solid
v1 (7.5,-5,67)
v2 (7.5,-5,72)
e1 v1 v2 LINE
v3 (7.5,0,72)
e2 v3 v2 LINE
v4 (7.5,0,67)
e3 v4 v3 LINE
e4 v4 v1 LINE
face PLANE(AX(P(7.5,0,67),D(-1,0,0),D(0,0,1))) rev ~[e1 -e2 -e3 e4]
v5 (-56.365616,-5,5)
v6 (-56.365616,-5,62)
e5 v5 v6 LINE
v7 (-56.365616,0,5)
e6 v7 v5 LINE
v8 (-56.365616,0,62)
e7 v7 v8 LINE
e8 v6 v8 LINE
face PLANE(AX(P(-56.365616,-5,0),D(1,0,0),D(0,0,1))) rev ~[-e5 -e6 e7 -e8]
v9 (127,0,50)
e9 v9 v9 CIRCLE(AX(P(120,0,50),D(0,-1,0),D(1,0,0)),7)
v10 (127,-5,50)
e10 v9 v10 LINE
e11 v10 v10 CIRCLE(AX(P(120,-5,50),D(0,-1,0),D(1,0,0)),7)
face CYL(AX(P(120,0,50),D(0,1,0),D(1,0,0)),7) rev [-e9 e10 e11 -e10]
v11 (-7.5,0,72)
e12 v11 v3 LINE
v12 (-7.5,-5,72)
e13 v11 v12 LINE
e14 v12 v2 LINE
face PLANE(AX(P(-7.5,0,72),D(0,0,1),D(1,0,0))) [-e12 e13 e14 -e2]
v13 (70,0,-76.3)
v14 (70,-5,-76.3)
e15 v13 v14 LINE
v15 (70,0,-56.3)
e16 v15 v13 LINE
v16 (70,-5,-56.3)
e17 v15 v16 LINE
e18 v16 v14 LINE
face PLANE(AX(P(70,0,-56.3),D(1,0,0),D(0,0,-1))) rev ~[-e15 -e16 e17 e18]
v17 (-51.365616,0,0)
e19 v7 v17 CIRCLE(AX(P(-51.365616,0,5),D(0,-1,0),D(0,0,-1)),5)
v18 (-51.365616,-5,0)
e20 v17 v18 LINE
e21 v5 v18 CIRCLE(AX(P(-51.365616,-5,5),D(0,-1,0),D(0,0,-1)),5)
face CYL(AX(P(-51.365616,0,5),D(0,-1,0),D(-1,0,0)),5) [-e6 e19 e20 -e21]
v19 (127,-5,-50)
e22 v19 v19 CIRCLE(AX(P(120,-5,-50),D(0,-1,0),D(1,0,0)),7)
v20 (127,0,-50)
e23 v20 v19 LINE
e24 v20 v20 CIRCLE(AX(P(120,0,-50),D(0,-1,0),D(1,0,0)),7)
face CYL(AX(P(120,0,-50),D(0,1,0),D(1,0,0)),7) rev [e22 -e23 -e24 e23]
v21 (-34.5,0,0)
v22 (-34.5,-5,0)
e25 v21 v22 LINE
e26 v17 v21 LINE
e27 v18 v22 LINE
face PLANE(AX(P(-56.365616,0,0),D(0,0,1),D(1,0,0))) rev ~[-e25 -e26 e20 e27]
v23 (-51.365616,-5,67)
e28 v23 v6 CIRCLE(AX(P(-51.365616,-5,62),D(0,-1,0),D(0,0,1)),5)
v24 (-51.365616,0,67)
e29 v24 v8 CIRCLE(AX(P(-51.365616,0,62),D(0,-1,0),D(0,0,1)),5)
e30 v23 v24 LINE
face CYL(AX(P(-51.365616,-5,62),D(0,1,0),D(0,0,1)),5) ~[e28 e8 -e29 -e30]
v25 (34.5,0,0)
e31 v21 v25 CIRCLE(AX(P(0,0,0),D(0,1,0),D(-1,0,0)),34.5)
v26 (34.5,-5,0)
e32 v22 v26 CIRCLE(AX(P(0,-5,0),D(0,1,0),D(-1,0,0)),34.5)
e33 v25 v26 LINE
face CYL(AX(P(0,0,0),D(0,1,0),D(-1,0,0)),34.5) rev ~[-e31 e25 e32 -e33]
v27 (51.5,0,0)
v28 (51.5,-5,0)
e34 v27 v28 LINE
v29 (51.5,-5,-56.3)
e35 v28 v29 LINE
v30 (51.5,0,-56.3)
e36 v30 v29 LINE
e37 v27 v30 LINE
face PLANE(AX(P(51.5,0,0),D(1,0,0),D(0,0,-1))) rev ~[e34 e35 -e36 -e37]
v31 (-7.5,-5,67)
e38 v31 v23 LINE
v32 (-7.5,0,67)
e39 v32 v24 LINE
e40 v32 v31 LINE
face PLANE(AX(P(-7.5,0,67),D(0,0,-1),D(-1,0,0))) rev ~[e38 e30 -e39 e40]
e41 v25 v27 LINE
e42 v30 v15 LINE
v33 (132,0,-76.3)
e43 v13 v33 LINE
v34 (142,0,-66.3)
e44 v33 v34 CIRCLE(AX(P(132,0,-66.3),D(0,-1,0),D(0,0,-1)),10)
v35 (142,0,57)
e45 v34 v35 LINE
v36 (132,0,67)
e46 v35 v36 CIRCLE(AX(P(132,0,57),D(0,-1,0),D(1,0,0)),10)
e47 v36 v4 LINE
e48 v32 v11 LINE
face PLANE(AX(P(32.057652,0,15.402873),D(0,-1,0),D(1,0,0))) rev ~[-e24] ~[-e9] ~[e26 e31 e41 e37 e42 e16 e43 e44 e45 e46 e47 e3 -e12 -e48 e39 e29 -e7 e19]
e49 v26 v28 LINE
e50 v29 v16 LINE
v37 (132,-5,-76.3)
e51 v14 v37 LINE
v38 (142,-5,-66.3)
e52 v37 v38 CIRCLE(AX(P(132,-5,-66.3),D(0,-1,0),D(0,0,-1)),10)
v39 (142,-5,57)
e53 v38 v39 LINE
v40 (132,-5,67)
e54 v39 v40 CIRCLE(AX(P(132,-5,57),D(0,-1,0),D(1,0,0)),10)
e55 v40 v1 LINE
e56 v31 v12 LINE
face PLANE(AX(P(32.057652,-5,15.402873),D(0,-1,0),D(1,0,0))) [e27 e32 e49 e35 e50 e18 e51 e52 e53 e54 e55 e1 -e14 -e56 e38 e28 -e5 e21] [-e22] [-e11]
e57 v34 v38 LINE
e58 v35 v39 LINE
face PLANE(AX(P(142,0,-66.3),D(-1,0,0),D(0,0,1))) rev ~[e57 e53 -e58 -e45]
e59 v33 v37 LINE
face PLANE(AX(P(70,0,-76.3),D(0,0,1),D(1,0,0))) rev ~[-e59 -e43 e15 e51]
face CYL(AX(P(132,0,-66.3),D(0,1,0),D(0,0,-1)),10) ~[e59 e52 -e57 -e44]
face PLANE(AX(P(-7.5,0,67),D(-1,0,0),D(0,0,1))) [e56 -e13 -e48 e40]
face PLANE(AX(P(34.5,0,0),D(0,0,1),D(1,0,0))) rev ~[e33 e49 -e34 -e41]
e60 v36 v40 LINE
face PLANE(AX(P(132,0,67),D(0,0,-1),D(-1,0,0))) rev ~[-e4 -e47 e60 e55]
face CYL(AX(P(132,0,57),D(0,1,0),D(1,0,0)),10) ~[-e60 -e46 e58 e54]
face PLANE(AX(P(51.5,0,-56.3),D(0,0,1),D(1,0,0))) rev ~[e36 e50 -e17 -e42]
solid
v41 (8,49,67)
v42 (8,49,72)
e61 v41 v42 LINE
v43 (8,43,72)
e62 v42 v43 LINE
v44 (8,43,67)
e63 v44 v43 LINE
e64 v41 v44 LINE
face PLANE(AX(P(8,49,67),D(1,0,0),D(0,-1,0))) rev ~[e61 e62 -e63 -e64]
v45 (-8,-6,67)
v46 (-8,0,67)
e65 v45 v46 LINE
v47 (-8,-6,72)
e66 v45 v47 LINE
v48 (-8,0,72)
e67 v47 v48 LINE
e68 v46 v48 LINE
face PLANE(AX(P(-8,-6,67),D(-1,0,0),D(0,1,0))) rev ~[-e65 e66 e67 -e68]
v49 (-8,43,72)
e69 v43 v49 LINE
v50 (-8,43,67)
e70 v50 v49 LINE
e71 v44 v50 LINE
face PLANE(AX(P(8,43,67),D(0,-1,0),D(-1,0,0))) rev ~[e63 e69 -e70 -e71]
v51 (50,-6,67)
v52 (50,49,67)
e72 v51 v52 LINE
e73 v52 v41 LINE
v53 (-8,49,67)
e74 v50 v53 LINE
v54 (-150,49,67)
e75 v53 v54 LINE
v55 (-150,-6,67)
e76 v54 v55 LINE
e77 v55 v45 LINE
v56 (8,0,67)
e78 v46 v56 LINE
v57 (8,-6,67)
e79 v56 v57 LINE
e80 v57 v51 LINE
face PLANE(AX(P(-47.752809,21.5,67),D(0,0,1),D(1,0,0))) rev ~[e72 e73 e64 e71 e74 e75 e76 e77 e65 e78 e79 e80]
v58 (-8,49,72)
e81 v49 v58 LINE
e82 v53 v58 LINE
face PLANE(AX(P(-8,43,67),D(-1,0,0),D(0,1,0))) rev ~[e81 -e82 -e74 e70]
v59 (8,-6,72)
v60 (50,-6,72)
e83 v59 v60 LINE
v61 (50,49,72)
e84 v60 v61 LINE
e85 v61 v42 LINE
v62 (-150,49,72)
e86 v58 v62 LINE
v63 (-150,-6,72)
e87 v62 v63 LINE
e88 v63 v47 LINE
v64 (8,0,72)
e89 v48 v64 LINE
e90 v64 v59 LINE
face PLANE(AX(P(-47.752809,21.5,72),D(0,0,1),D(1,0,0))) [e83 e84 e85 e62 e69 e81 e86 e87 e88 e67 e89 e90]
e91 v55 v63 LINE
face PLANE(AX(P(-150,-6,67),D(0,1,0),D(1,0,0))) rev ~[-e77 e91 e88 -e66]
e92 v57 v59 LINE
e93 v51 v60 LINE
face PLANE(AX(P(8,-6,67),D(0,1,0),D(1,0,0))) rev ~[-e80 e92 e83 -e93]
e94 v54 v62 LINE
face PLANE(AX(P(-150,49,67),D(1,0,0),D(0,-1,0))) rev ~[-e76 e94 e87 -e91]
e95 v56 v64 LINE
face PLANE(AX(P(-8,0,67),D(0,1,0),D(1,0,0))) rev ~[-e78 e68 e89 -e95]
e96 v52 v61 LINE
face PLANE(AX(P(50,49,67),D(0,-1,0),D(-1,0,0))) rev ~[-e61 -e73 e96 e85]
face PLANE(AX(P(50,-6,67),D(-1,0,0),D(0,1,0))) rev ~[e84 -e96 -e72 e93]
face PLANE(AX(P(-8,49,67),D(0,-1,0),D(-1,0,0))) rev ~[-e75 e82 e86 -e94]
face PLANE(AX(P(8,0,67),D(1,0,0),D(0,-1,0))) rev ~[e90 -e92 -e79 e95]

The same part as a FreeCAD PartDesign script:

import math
import FreeCAD as App
import Part
import Sketcher
Q = App.Units.Quantity


def edges_at(feature, points):
    """Names of the edges that pass closest to the given points."""
    edges = feature.Shape.Edges
    near = lambda p: min(range(len(edges)), key=lambda i: edges[i].distToShape(Part.Vertex(*p))[0])
    return sorted({f"Edge{near(p) + 1}" for p in points})

doc = App.newDocument("Part")
body = doc.addObject("PartDesign::Body", "Body")

# Sketch on XZ plane
sketch1 = doc.addObject("Sketcher::SketchObject", "Sketch")
body.addObject(sketch1)
sketch1.AttachmentSupport = (doc.XZ_Plane, [""])
sketch1.MapMode = "FlatFace"
sketch1.addGeometry([
    Part.ArcOfCircle(Part.Circle(App.Vector(-112, 57, 0), App.Vector(0, 0, 1), 10), math.radians(90), math.radians(230)),  # 0
    Part.LineSegment(App.Vector(-119, 49, 0), App.Vector(-63, 2, 0)),  # 1
    Part.ArcOfCircle(Part.Circle(App.Vector(-56, 10, 0), App.Vector(0, 0, 1), 10), math.radians(-130), math.radians(-90)),  # 2
    Part.LineSegment(App.Vector(-56, 0, 0), App.Vector(-34, 0, 0)),  # 3
    Part.ArcOfCircle(Part.Circle(App.Vector(0, 0, 0), App.Vector(0, 0, 1), 34), math.radians(0), math.radians(180)),  # 4
    Part.LineSegment(App.Vector(34, 0, 0), App.Vector(52, 0, 0)),  # 5
    Part.LineSegment(App.Vector(52, 0, 0), App.Vector(52, -56, 0)),  # 6
    Part.LineSegment(App.Vector(52, -56, 0), App.Vector(70, -56, 0)),  # 7
    Part.LineSegment(App.Vector(70, -56, 0), App.Vector(70, -76, 0)),  # 8
    Part.LineSegment(App.Vector(70, -76, 0), App.Vector(132, -76, 0)),  # 9
    Part.ArcOfCircle(Part.Circle(App.Vector(132, -66, 0), App.Vector(0, 0, 1), 10), math.radians(-90), math.radians(0)),  # 10
    Part.LineSegment(App.Vector(142, -66, 0), App.Vector(142, 57, 0)),  # 11
    Part.ArcOfCircle(Part.Circle(App.Vector(132, 57, 0), App.Vector(0, 0, 1), 10), math.radians(0), math.radians(90)),  # 12
    Part.LineSegment(App.Vector(132, 67, 0), App.Vector(8, 67, 0)),  # 13
    Part.LineSegment(App.Vector(8, 67, 0), App.Vector(8, 72, 0)),  # 14
    Part.LineSegment(App.Vector(8, 72, 0), App.Vector(-8, 72, 0)),  # 15
    Part.LineSegment(App.Vector(-8, 72, 0), App.Vector(-8, 67, 0)),  # 16
    Part.LineSegment(App.Vector(-8, 67, 0), App.Vector(-112, 67, 0)),  # 17
    Part.Circle(App.Vector(120, -50, 0), App.Vector(0, 0, 1), 7),  # 18
    Part.Circle(App.Vector(120, 50, 0), App.Vector(0, 0, 1), 7),  # 19
], False)
sketch1.addConstraint([
    Sketcher.Constraint("Tangent", 0, 2, 1, 1),
    Sketcher.Constraint("Tangent", 1, 2, 2, 1),
    Sketcher.Constraint("Tangent", 2, 2, 3, 1),
    Sketcher.Constraint("Coincident", 3, 2, 4, 2),
    Sketcher.Constraint("Coincident", 4, 1, 5, 1),
    Sketcher.Constraint("Coincident", 5, 2, 6, 1),
    Sketcher.Constraint("Coincident", 6, 2, 7, 1),
    Sketcher.Constraint("Coincident", 7, 2, 8, 1),
    Sketcher.Constraint("Coincident", 8, 2, 9, 1),
    Sketcher.Constraint("Tangent", 9, 2, 10, 1),
    Sketcher.Constraint("Tangent", 10, 2, 11, 1),
    Sketcher.Constraint("Tangent", 11, 2, 12, 1),
    Sketcher.Constraint("Tangent", 12, 2, 13, 1),
    Sketcher.Constraint("Coincident", 13, 2, 14, 1),
    Sketcher.Constraint("Coincident", 14, 2, 15, 1),
    Sketcher.Constraint("Coincident", 15, 2, 16, 1),
    Sketcher.Constraint("Coincident", 16, 2, 17, 1),
    Sketcher.Constraint("Tangent", 17, 2, 0, 1),
    Sketcher.Constraint("Horizontal", 3),
    Sketcher.Constraint("Horizontal", 5),
    Sketcher.Constraint("Vertical", 6),
    Sketcher.Constraint("Horizontal", 7),
    Sketcher.Constraint("Vertical", 8),
    Sketcher.Constraint("Horizontal", 9),
    Sketcher.Constraint("Vertical", 11),
    Sketcher.Constraint("Horizontal", 13),
    Sketcher.Constraint("Vertical", 14),
    Sketcher.Constraint("Horizontal", 15),
    Sketcher.Constraint("Vertical", 16),
    Sketcher.Constraint("Horizontal", 17),
    Sketcher.Constraint("Coincident", 4, 3, -1, 1),
    Sketcher.Constraint("Equal", 0, 2),
    Sketcher.Constraint("Equal", 2, 10),
    Sketcher.Constraint("Equal", 10, 12),
    Sketcher.Constraint("Equal", 18, 19),
    Sketcher.Constraint("Symmetric", 13, 2, 16, 2, -2),
    Sketcher.Constraint("Symmetric", 18, 3, 19, 3, -1),
    Sketcher.Constraint("PointOnObject", 2, 2, -1),
    Sketcher.Constraint("PointOnObject", 4, 1, -1),
    Sketcher.Constraint("Diameter", 18, Q("14 mm")),
    Sketcher.Constraint("Radius", 0, Q("10 mm")),
    Sketcher.Constraint("Radius", 4, Q("34.5 mm")),
    Sketcher.Constraint("DistanceX", 5, 1, 5, 2, Q("17 mm")),
    Sketcher.Constraint("DistanceX", 9, 1, 9, 2, Q("62 mm")),
    Sketcher.Constraint("DistanceX", 15, 2, 15, 1, Q("15 mm")),
    Sketcher.Constraint("DistanceY", 8, 2, 8, 1, Q("20 mm")),
    Sketcher.Constraint("DistanceY", 14, 1, 14, 2, Q("5 mm")),
    Sketcher.Constraint("DistanceX", 7, 1, 7, 2, Q("18.5 mm")),
    Sketcher.Constraint("DistanceY", 6, 2, 6, 1, Q("56.3 mm")),
    Sketcher.Constraint("DistanceY", 11, 1, 11, 2, Q("123.3 mm")),
    Sketcher.Constraint("DistanceX", -1, 1, 18, 3, Q("120 mm")),
    Sketcher.Constraint("DistanceY", 18, 3, -1, 1, Q("50 mm")),
    Sketcher.Constraint("DistanceX", 17, 2, 17, 1, Q("104.985019 mm")),
    Sketcher.Constraint("DistanceX", 3, 1, 3, 2, Q("21.865616 mm")),
])
pad1 = doc.addObject("PartDesign::Pad", "Pad")
body.addObject(pad1)
pad1.Profile = sketch1
pad1.Length = 5

# Sketch on XZ plane
sketch2 = doc.addObject("Sketcher::SketchObject", "Sketch001")
body.addObject(sketch2)
sketch2.AttachmentSupport = (doc.XZ_Plane, [""])
sketch2.MapMode = "FlatFace"
sketch2.AttachmentOffset = App.Placement(App.Vector(0, 0, 5), App.Rotation())
sketch2.addGeometry([
    Part.ArcOfCircle(Part.Circle(App.Vector(-56, 10, 0), App.Vector(0, 0, 1), 10), math.radians(-130), math.radians(-90)),  # 0
    Part.LineSegment(App.Vector(-56, 0, 0), App.Vector(-56, 67, 0)),  # 1
    Part.LineSegment(App.Vector(-56, 67, 0), App.Vector(-112, 67, 0)),  # 2
    Part.ArcOfCircle(Part.Circle(App.Vector(-112, 57, 0), App.Vector(0, 0, 1), 10), math.radians(90), math.radians(230)),  # 3
    Part.LineSegment(App.Vector(-119, 49, 0), App.Vector(-63, 2, 0)),  # 4
], False)
sketch2.addConstraint([
    Sketcher.Constraint("Coincident", 0, 2, 1, 1),
    Sketcher.Constraint("Coincident", 1, 2, 2, 1),
    Sketcher.Constraint("Tangent", 2, 2, 3, 1),
    Sketcher.Constraint("Tangent", 3, 2, 4, 1),
    Sketcher.Constraint("Tangent", 4, 2, 0, 1),
    Sketcher.Constraint("Vertical", 1),
    Sketcher.Constraint("Horizontal", 2),
    Sketcher.Constraint("Equal", 0, 3),
    Sketcher.Constraint("PointOnObject", 0, 2, -1),
    Sketcher.Constraint("Radius", 0, Q("10 mm")),
    Sketcher.Constraint("DistanceY", 1, 1, 1, 2, Q("67 mm")),
    Sketcher.Constraint("DistanceX", 2, 2, 2, 1, Q("56.119403 mm")),
    Sketcher.Constraint("DistanceX", 3, 3, -1, 1, Q("112.485019 mm")),
    Sketcher.Constraint("DistanceY", -1, 1, 3, 2, Q("49.33352 mm")),
])
pocket1 = doc.addObject("PartDesign::Pocket", "Pocket")
body.addObject(pocket1)
pocket1.Profile = sketch2
pocket1.Length = 25
doc.recompute()

fillet = doc.addObject("PartDesign::Fillet", "Fillet")
body.addObject(fillet)
fillet.Base = (pocket1, edges_at(pocket1, [(-56.366, -2.5, 67), (-56.366, -2.5, 0)]))
fillet.Radius = 5
body2 = doc.addObject("PartDesign::Body", "Body001")

# Sketch on XY plane
sketch3 = doc.addObject("Sketcher::SketchObject", "Sketch002")
body2.addObject(sketch3)
sketch3.AttachmentSupport = (doc.getObject("XY_Plane001"), [""])
sketch3.MapMode = "FlatFace"
sketch3.AttachmentOffset = App.Placement(App.Vector(0, 0, 67), App.Rotation())
sketch3.addGeometry([
    Part.LineSegment(App.Vector(8, -6, 0), App.Vector(50, -6, 0)),  # 0
    Part.LineSegment(App.Vector(50, -6, 0), App.Vector(50, 49, 0)),  # 1
    Part.LineSegment(App.Vector(50, 49, 0), App.Vector(8, 49, 0)),  # 2
    Part.LineSegment(App.Vector(8, 49, 0), App.Vector(8, 43, 0)),  # 3
    Part.LineSegment(App.Vector(8, 43, 0), App.Vector(-8, 43, 0)),  # 4
    Part.LineSegment(App.Vector(-8, 43, 0), App.Vector(-8, 49, 0)),  # 5
    Part.LineSegment(App.Vector(-8, 49, 0), App.Vector(-150, 49, 0)),  # 6
    Part.LineSegment(App.Vector(-150, 49, 0), App.Vector(-150, -6, 0)),  # 7
    Part.LineSegment(App.Vector(-150, -6, 0), App.Vector(-8, -6, 0)),  # 8
    Part.LineSegment(App.Vector(-8, -6, 0), App.Vector(-8, 0, 0)),  # 9
    Part.LineSegment(App.Vector(-8, 0, 0), App.Vector(8, 0, 0)),  # 10
    Part.LineSegment(App.Vector(8, 0, 0), App.Vector(8, -6, 0)),  # 11
], False)
sketch3.addConstraint([
    Sketcher.Constraint("Coincident", 0, 2, 1, 1),
    Sketcher.Constraint("Coincident", 1, 2, 2, 1),
    Sketcher.Constraint("Coincident", 2, 2, 3, 1),
    Sketcher.Constraint("Coincident", 3, 2, 4, 1),
    Sketcher.Constraint("Coincident", 4, 2, 5, 1),
    Sketcher.Constraint("Coincident", 5, 2, 6, 1),
    Sketcher.Constraint("Coincident", 6, 2, 7, 1),
    Sketcher.Constraint("Coincident", 7, 2, 8, 1),
    Sketcher.Constraint("Coincident", 8, 2, 9, 1),
    Sketcher.Constraint("Coincident", 9, 2, 10, 1),
    Sketcher.Constraint("Coincident", 10, 2, 11, 1),
    Sketcher.Constraint("Coincident", 11, 2, 0, 1),
    Sketcher.Constraint("Horizontal", 0),
    Sketcher.Constraint("Vertical", 1),
    Sketcher.Constraint("Horizontal", 2),
    Sketcher.Constraint("Vertical", 3),
    Sketcher.Constraint("Horizontal", 4),
    Sketcher.Constraint("Vertical", 5),
    Sketcher.Constraint("Horizontal", 6),
    Sketcher.Constraint("Vertical", 7),
    Sketcher.Constraint("Horizontal", 8),
    Sketcher.Constraint("Vertical", 9),
    Sketcher.Constraint("Horizontal", 10),
    Sketcher.Constraint("Vertical", 11),
    Sketcher.Constraint("Symmetric", 9, 2, 10, 2, -1, 1),
    Sketcher.Constraint("Symmetric", 2, 2, 5, 2, -2),
    Sketcher.Constraint("Horizontal", 0, 2, 7, 2),
    Sketcher.Constraint("Vertical", 5, 2, 8, 2),
    Sketcher.Constraint("Equal", 5, 9),
    Sketcher.Constraint("DistanceX", 0, 1, 0, 2, Q("42 mm")),
    Sketcher.Constraint("DistanceX", 4, 2, 4, 1, Q("16 mm")),
    Sketcher.Constraint("DistanceX", 6, 2, 6, 1, Q("142 mm")),
    Sketcher.Constraint("DistanceY", 1, 1, 1, 2, Q("55 mm")),
    Sketcher.Constraint("DistanceY", 3, 2, 3, 1, Q("6 mm")),
])
pad2 = doc.addObject("PartDesign::Pad", "Pad001")
body2.addObject(pad2)
pad2.Profile = sketch3
pad2.Length = 5

doc.recompute()
